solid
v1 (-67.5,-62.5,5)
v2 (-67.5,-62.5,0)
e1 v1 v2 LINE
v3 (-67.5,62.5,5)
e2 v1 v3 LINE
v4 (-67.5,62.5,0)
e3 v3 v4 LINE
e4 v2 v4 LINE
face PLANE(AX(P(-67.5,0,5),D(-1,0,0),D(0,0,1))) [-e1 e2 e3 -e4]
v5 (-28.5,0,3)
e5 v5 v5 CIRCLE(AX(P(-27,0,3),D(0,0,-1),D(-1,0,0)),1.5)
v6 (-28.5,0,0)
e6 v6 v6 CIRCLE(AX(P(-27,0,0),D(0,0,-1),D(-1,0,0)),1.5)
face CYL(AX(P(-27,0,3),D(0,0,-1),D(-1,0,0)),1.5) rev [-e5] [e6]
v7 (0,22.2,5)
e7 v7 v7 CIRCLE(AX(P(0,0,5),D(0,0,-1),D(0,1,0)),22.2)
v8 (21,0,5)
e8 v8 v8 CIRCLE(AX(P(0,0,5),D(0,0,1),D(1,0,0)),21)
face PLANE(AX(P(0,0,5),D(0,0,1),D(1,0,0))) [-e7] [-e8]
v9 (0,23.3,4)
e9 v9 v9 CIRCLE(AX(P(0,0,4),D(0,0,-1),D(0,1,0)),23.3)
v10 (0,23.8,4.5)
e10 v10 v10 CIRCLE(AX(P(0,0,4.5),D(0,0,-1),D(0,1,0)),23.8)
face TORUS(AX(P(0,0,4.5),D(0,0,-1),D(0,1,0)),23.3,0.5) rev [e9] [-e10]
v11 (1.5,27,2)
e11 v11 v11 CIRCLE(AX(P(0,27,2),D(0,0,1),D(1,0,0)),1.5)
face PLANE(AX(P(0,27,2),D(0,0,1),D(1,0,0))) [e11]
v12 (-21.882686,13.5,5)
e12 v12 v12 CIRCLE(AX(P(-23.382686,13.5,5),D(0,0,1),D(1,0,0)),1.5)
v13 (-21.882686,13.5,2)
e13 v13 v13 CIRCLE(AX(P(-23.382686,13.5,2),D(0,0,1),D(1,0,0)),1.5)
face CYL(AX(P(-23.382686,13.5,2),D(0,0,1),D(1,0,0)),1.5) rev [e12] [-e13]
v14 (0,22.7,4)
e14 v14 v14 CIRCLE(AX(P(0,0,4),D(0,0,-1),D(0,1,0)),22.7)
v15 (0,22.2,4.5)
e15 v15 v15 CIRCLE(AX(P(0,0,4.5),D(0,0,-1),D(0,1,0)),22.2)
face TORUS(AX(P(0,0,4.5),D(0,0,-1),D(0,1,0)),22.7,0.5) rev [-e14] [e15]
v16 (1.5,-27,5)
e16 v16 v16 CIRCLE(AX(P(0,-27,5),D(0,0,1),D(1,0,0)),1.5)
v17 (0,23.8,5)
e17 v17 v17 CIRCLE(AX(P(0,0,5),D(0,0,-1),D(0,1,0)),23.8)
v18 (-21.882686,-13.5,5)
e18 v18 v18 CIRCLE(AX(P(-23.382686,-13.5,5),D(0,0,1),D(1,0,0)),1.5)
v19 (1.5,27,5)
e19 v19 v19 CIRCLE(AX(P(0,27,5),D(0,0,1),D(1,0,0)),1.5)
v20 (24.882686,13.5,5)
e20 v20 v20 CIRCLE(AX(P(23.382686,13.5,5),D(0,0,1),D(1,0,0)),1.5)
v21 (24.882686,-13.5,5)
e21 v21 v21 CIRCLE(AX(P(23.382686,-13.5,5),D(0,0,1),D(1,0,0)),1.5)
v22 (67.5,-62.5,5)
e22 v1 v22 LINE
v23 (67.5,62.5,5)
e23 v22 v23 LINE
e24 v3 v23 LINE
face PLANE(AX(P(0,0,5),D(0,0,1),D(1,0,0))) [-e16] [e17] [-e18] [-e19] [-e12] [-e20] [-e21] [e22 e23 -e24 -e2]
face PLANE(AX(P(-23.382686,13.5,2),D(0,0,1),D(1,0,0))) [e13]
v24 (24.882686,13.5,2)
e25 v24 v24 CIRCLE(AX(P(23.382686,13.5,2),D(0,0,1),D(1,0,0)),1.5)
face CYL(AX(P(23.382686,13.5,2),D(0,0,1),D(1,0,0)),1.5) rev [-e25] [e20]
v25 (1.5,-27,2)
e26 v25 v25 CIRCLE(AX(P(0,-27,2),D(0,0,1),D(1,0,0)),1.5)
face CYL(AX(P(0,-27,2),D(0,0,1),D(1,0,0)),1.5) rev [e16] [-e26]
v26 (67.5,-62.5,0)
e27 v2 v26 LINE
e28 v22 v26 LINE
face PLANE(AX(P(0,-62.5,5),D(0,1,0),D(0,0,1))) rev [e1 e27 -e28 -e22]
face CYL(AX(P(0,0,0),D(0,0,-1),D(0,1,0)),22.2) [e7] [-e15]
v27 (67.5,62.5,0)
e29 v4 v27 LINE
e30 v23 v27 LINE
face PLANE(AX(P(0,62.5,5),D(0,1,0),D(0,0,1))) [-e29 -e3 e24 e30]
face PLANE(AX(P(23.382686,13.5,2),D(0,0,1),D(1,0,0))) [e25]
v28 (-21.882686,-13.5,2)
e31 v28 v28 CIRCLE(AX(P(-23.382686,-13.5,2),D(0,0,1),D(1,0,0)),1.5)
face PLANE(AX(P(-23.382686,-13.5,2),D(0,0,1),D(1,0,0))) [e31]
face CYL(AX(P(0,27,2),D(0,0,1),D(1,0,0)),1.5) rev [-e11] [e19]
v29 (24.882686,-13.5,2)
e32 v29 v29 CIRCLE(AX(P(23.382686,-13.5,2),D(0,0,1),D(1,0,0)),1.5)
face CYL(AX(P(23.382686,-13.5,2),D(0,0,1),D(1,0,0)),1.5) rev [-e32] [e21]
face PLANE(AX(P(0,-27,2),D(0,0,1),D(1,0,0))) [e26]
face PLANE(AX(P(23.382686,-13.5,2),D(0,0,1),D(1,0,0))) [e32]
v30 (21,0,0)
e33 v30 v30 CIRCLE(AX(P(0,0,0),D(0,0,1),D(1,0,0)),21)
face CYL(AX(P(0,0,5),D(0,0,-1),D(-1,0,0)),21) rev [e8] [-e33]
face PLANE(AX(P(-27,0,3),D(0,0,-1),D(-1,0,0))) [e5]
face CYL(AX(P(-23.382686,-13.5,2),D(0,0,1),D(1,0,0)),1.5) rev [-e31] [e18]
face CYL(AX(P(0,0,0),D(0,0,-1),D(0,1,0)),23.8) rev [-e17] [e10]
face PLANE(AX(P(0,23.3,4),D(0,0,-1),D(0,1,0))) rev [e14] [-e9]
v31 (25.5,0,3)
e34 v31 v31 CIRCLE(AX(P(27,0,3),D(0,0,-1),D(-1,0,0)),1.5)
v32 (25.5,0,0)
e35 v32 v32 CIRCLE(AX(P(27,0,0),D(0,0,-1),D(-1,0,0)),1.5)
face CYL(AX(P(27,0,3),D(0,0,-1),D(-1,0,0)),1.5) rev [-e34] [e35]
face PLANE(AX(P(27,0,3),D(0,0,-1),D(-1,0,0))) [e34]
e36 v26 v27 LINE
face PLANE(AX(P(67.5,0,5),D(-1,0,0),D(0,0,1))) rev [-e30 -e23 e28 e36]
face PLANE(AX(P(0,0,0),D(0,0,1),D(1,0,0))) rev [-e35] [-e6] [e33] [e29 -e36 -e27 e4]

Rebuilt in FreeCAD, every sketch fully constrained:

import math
import FreeCAD as App
import Part
import Sketcher

doc = App.newDocument("Part")
body = doc.addObject("PartDesign::Body", "Body")

# Sketch on XY plane
sketch1 = body.newObject("Sketcher::SketchObject", "Sketch")
sketch1.AttachmentSupport = (doc.getObject("XY_Plane"), [""])
sketch1.MapMode = "FlatFace"
sketch1.addGeometry([
    Part.LineSegment(App.Vector(-68, 62, 0), App.Vector(-68, -62, 0)),  # 0
    Part.LineSegment(App.Vector(-68, -62, 0), App.Vector(68, -62, 0)),  # 1
    Part.LineSegment(App.Vector(68, -62, 0), App.Vector(68, 62, 0)),  # 2
    Part.LineSegment(App.Vector(68, 62, 0), App.Vector(-68, 62, 0)),  # 3
    Part.Circle(App.Vector(0, 0, 0), App.Vector(0, 0, 1), 21),  # 4
], False)
sketch1.addConstraint([
    Sketcher.Constraint("Coincident", 0, 2, 1, 1),
    Sketcher.Constraint("Coincident", 1, 2, 2, 1),
    Sketcher.Constraint("Coincident", 2, 2, 3, 1),
    Sketcher.Constraint("Coincident", 3, 2, 0, 1),
    Sketcher.Constraint("Vertical", 0),
    Sketcher.Constraint("Horizontal", 1),
    Sketcher.Constraint("Vertical", 2),
    Sketcher.Constraint("Horizontal", 3),
    Sketcher.Constraint("Coincident", 4, 3, -1, 1),
    Sketcher.Constraint("Symmetric", 0, 2, 2, 2, -1, 1),
    Sketcher.Constraint("Diameter", 4, 42.0),
    Sketcher.Constraint("DistanceX", 1, 1, 1, 2, 135.0),
    Sketcher.Constraint("DistanceY", 0, 2, 0, 1, 125.0),
])
pad1 = body.newObject("PartDesign::Pad", "Pad")
pad1.Profile = sketch1
pad1.Length = 5

# Sketch on XY plane
sketch2 = body.newObject("Sketcher::SketchObject", "Sketch001")
sketch2.AttachmentSupport = (doc.getObject("XY_Plane"), [""])
sketch2.MapMode = "FlatFace"
sketch2.AttachmentOffset = App.Placement(App.Vector(0, 0, 5), App.Rotation())
sketch2.addGeometry([
    Part.Circle(App.Vector(0, 27, 0), App.Vector(0, 0, 1), 1.5),  # 0
    Part.Circle(App.Vector(23.4, 13.5, 0), App.Vector(0, 0, 1), 1.5),  # 1
    Part.Circle(App.Vector(23.4, -13.5, 0), App.Vector(0, 0, 1), 1.5),  # 2
    Part.Circle(App.Vector(0, -27, 0), App.Vector(0, 0, 1), 1.5),  # 3
    Part.Circle(App.Vector(-23.4, -13.5, 0), App.Vector(0, 0, 1), 1.5),  # 4
    Part.Circle(App.Vector(-23.4, 13.5, 0), App.Vector(0, 0, 1), 1.5),  # 5
], False)
sketch2.addConstraint([
    Sketcher.Constraint("Equal", 0, 1),
    Sketcher.Constraint("Equal", 1, 2),
    Sketcher.Constraint("Equal", 2, 3),
    Sketcher.Constraint("Equal", 3, 4),
    Sketcher.Constraint("Equal", 4, 5),
    Sketcher.Constraint("Symmetric", 0, 3, 3, 3, -1, 1),
    Sketcher.Constraint("Symmetric", 1, 3, 4, 3, -1, 1),
    Sketcher.Constraint("Symmetric", 2, 3, 5, 3, -1, 1),
    Sketcher.Constraint("Symmetric", 2, 3, 4, 3, -2),
    Sketcher.Constraint("PointOnObject", 0, 3, -2),
    Sketcher.Constraint("Diameter", 0, 3.0),
    Sketcher.Constraint("DistanceY", -1, 1, 0, 3, 27.0),
    Sketcher.Constraint("DistanceY", 2, 3, 1, 3, 27.0),
    Sketcher.Constraint("DistanceX", 4, 3, 2, 3, 46.765372),
])
pocket1 = body.newObject("PartDesign::Pocket", "Pocket")
pocket1.Profile = sketch2
pocket1.Length = 3

# Sketch on XY plane
sketch3 = body.newObject("Sketcher::SketchObject", "Sketch002")
sketch3.AttachmentSupport = (doc.getObject("XY_Plane"), [""])
sketch3.MapMode = "FlatFace"
sketch3.addGeometry([
    Part.Circle(App.Vector(-27, 0, 0), App.Vector(0, 0, 1), 1.5),
    Part.Circle(App.Vector(27, 0, 0), App.Vector(0, 0, 1), 1.5),
], False)
sketch3.addConstraint([
    Sketcher.Constraint("Equal", 0, 1),
    Sketcher.Constraint("Symmetric", 0, 3, 1, 3, -1, 1),
    Sketcher.Constraint("PointOnObject", 0, 3, -1),
    Sketcher.Constraint("Diameter", 0, 3.0),
    Sketcher.Constraint("DistanceX", 0, 3, -1, 1, 27.0),
])
pocket2 = body.newObject("PartDesign::Pocket", "Pocket001")
pocket2.Profile = sketch3
pocket2.Length = 3
pocket2.Reversed = True

# Sketch on YZ plane
sketch4 = body.newObject("Sketcher::SketchObject", "Sketch003")
sketch4.AttachmentSupport = (doc.getObject("YZ_Plane"), [""])
sketch4.MapMode = "FlatFace"
sketch4.addGeometry([
    Part.LineSegment(App.Vector(23.8, 4.5, 0), App.Vector(23.8, 5, 0)),  # 0
    Part.LineSegment(App.Vector(23.8, 5, 0), App.Vector(22.2, 5, 0)),  # 1
    Part.LineSegment(App.Vector(22.2, 5, 0), App.Vector(22.2, 4.5, 0)),  # 2
    Part.ArcOfCircle(Part.Circle(App.Vector(22.7, 4.5, 0), App.Vector(0, 0, 1), 0.5), math.radians(180), math.radians(270)),  # 3
    Part.LineSegment(App.Vector(22.7, 4, 0), App.Vector(23.3, 4, 0)),  # 4
    Part.ArcOfCircle(Part.Circle(App.Vector(23.3, 4.5, 0), App.Vector(0, 0, 1), 0.5), math.radians(-90), math.radians(0)),  # 5
], False)
sketch4.addConstraint([
    Sketcher.Constraint("Coincident", 0, 2, 1, 1),
    Sketcher.Constraint("Coincident", 1, 2, 2, 1),
    Sketcher.Constraint("Tangent", 2, 2, 3, 1),
    Sketcher.Constraint("Tangent", 3, 2, 4, 1),
    Sketcher.Constraint("Tangent", 4, 2, 5, 1),
    Sketcher.Constraint("Tangent", 5, 2, 0, 1),
    Sketcher.Constraint("Vertical", 0),
    Sketcher.Constraint("Horizontal", 1),
    Sketcher.Constraint("Vertical", 2),
    Sketcher.Constraint("Horizontal", 4),
    Sketcher.Constraint("Equal", 3, 5),
    Sketcher.Constraint("Radius", 3, 0.5),
    Sketcher.Constraint("DistanceX", 1, 2, 1, 1, 1.6),
    Sketcher.Constraint("DistanceY", 0, 1, 0, 2, 0.5),
    Sketcher.Constraint("DistanceY", -1, 1, 0, 2, 5.0),
    Sketcher.Constraint("DistanceX", -1, 1, 3, 3, 22.7),
])
groove = body.newObject("PartDesign::Groove", "Groove")
groove.Profile = sketch4
groove.ReferenceAxis = (sketch4, ["V_Axis"])
groove.Angle = 360

doc.recompute()
